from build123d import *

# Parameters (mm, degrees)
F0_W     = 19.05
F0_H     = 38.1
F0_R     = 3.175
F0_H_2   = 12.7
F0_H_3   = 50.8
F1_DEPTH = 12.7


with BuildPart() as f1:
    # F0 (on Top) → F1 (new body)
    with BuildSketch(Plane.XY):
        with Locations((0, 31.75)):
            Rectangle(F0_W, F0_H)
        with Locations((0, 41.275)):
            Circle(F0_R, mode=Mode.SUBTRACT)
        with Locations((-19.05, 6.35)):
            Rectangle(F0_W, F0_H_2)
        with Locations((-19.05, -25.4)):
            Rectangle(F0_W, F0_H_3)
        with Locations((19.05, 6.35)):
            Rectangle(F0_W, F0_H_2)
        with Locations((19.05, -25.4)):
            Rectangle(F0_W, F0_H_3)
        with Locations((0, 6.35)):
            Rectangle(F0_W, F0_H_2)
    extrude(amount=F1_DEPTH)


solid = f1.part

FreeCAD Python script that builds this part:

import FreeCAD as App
import Part
import Sketcher
Q = App.Units.Quantity


def add_polygon(sketch, points):
    """Adds a closed chain of lines whose ends are joined by coincident constraints."""
    first, n = sketch.GeometryCount, len(points)
    for a, b in zip(points, points[1:] + points[:1]):
        sketch.addGeometry(Part.LineSegment(App.Vector(*a, 0), App.Vector(*b, 0)), False)
    for i in range(n):
        sketch.addConstraint(Sketcher.Constraint("Coincident", first + i, 2, first + (i + 1) % n, 1))

doc = App.newDocument("Part")
body = doc.addObject("PartDesign::Body", "Body")

sketch1 = doc.addObject("Sketcher::SketchObject", "Sketch")
body.addObject(sketch1)
sketch1.AttachmentSupport = (doc.XY_Plane, [""])
sketch1.MapMode = "FlatFace"
add_polygon(sketch1, [(-9.5, 50.8), (-9.5, 12.7), (-28.6, 12.7), (-28.6, -50.8), (-9.5, -50.8), (-9.5, 0), (9.5, 0), (9.5, -50.8), (28.6, -50.8), (28.6, 12.7), (9.5, 12.7), (9.5, 50.8)])
sketch1.addGeometry(Part.Circle(App.Vector(0, 41.3, 0), App.Vector(0, 0, 1), 3.2), False)
sketch1.addConstraint([
    Sketcher.Constraint("Vertical", 0),
    Sketcher.Constraint("Horizontal", 1),
    Sketcher.Constraint("Vertical", 2),
    Sketcher.Constraint("Horizontal", 3),
    Sketcher.Constraint("Vertical", 4),
    Sketcher.Constraint("Horizontal", 5),
    Sketcher.Constraint("Vertical", 6),
    Sketcher.Constraint("Horizontal", 7),
    Sketcher.Constraint("Vertical", 8),
    Sketcher.Constraint("Horizontal", 9),
    Sketcher.Constraint("Vertical", 10),
    Sketcher.Constraint("Horizontal", 11),
    Sketcher.Constraint("Symmetric", 4, 2, 5, 2, -1, 1),
    Sketcher.Constraint("Symmetric", 3, 2, 10, 2, -1, 1),
    Sketcher.Constraint("Symmetric", 6, 2, 11, 2, -1, 1),
    Sketcher.Constraint("Symmetric", 1, 2, 8, 2, -2),
    Sketcher.Constraint("PointOnObject", 12, 3, -2),
    Sketcher.Constraint("Equal", 3, 5),
    Sketcher.Constraint("Diameter", 12, Q("0.25 in")),
    Sketcher.Constraint("DistanceY", 4, 1, 4, 2, Q("2 in")),
    Sketcher.Constraint("DistanceY", 0, 2, 0, 1, Q("1.5 in")),
    Sketcher.Constraint("DistanceX", 1, 2, 1, 1, Q("0.75 in")),
    Sketcher.Constraint("DistanceY", -1, 1, 12, 3, Q("1.625 in")),
])
pad1 = doc.addObject("PartDesign::Pad", "Pad")
body.addObject(pad1)
pad1.Profile = sketch1
pad1.Length = Q("0.5 in")

doc.recompute()
